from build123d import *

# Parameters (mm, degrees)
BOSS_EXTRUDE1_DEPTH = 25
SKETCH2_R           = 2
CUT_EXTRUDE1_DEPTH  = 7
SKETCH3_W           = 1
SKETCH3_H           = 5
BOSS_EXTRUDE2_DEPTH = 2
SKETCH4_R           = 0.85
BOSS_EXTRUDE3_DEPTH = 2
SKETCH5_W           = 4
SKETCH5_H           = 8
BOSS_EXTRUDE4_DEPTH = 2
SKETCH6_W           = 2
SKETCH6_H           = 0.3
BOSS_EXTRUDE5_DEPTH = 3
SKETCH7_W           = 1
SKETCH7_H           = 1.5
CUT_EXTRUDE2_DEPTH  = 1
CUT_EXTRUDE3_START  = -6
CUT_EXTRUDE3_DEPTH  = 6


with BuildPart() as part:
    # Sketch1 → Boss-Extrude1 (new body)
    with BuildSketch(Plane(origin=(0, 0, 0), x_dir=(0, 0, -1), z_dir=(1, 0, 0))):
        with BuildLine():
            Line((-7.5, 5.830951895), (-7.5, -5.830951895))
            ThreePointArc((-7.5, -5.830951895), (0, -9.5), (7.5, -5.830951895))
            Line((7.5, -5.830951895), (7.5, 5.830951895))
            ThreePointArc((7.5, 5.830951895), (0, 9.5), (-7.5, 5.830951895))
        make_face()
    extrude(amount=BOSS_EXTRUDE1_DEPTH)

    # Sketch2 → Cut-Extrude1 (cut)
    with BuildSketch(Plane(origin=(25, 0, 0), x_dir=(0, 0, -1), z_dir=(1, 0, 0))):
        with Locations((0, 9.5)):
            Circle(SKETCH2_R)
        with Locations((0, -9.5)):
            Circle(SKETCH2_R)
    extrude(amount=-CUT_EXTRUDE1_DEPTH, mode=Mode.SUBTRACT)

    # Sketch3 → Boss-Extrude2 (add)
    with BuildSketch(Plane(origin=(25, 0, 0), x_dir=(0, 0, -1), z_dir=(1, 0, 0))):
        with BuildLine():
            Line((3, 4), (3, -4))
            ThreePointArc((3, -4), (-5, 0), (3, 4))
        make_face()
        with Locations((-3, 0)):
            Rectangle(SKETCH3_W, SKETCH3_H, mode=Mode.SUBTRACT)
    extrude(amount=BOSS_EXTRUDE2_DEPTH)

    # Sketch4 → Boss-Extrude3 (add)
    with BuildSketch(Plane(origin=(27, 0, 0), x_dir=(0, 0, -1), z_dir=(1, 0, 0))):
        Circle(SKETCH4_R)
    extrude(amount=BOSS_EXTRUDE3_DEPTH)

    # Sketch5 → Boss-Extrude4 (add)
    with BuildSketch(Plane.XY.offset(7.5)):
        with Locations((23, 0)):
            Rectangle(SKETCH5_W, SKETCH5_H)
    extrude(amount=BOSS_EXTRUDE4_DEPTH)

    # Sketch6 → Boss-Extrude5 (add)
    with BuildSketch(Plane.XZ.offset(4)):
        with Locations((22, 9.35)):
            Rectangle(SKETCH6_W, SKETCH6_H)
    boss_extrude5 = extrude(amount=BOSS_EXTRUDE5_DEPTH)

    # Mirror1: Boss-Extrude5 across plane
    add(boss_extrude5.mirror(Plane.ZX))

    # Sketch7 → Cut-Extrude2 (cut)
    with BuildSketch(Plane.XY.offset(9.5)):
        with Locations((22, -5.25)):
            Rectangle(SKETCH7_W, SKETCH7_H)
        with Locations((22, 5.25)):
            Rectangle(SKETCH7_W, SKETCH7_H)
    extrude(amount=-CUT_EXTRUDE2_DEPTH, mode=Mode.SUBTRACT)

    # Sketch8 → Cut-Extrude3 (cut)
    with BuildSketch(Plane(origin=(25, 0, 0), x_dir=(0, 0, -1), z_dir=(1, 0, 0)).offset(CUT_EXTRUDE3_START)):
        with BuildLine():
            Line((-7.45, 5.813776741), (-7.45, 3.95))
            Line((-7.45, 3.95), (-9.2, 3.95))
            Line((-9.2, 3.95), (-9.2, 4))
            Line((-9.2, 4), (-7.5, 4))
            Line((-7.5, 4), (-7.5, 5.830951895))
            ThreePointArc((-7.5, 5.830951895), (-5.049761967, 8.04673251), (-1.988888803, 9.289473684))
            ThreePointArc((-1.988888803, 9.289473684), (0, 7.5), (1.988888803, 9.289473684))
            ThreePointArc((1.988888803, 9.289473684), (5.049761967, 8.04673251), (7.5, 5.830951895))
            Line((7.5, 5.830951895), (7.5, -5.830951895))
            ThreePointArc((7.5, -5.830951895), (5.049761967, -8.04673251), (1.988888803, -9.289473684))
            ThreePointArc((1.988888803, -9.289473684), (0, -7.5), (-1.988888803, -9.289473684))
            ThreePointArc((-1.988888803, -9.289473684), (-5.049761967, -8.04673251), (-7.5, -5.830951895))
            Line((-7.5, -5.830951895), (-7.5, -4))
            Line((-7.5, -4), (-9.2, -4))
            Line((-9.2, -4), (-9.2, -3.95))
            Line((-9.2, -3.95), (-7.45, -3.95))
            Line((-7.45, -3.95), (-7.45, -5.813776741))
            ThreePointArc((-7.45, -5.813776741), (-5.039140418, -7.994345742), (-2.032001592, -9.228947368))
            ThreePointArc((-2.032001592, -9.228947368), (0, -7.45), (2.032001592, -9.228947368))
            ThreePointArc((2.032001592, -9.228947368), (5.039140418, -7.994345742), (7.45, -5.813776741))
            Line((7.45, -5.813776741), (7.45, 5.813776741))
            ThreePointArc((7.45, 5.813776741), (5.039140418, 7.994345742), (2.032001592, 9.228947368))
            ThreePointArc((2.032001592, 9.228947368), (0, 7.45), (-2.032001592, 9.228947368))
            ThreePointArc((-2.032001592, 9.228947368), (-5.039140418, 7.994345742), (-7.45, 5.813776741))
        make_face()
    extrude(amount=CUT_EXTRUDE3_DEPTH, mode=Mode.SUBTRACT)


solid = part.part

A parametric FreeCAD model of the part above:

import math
import FreeCAD as App
import Part
import Sketcher

V = App.Vector

doc = App.newDocument("Part")
body = doc.addObject("PartDesign::Body", "Body")

sketch1 = doc.addObject("Sketcher::SketchObject", "Sketch")
body.addObject(sketch1)
sketch1.AttachmentSupport = (doc.YZ_Plane, [""])
sketch1.MapMode = "FlatFace"
sketch1.addGeometry(Part.LineSegment(V(6, 8, 0), V(-6, 8, 0)), False)
sketch1.addGeometry(Part.ArcOfCircle(Part.Circle(V(0, 0, 0), V(0, 0, 1), 10), math.radians(128), math.radians(232)), False)
sketch1.addGeometry(Part.LineSegment(V(-6, -8, 0), V(6, -8, 0)), False)
sketch1.addGeometry(Part.ArcOfCircle(Part.Circle(V(0, 0, 0), V(0, 0, 1), 10), math.radians(-52), math.radians(52)), False)
sketch1.addConstraint(Sketcher.Constraint("Coincident", 0, 2, 1, 1))
sketch1.addConstraint(Sketcher.Constraint("Coincident", 1, 2, 2, 1))
sketch1.addConstraint(Sketcher.Constraint("Coincident", 2, 2, 3, 1))
sketch1.addConstraint(Sketcher.Constraint("Coincident", 3, 2, 0, 1))
sketch1.addConstraint(Sketcher.Constraint("Horizontal", 0))
sketch1.addConstraint(Sketcher.Constraint("Horizontal", 2))
sketch1.addConstraint(Sketcher.Constraint("Coincident", 1, 3, -1, 1))
sketch1.addConstraint(Sketcher.Constraint("Coincident", 3, 3, -1, 1))
sketch1.addConstraint(Sketcher.Constraint("Equal", 1, 3))
sketch1.addConstraint(Sketcher.Constraint("Vertical", 0, 2, 1, 2))
sketch1.addConstraint(Sketcher.Constraint("Radius", 1, 9.5))
sketch1.addConstraint(Sketcher.Constraint("DistanceY", 1, 2, 0, 2, 15.0))
pad1 = doc.addObject("PartDesign::Pad", "Pad")
body.addObject(pad1)
pad1.Profile = sketch1
pad1.Length = 25

sketch2 = doc.addObject("Sketcher::SketchObject", "Sketch001")
body.addObject(sketch2)
sketch2.AttachmentSupport = (doc.YZ_Plane, [""])
sketch2.MapMode = "FlatFace"
sketch2.AttachmentOffset = App.Placement(V(0, 0, 25), App.Rotation())
sketch2.addGeometry(Part.Circle(V(9.5, 0, 0), V(0, 0, 1), 2), False)
sketch2.addGeometry(Part.Circle(V(-9.5, 0, 0), V(0, 0, 1), 2), False)
sketch2.addConstraint(Sketcher.Constraint("Equal", 0, 1))
sketch2.addConstraint(Sketcher.Constraint("Symmetric", 0, 3, 1, 3, -1, 1))
sketch2.addConstraint(Sketcher.Constraint("PointOnObject", 0, 3, -1))
sketch2.addConstraint(Sketcher.Constraint("Diameter", 0, 4.0))
sketch2.addConstraint(Sketcher.Constraint("DistanceX", 1, 3, 0, 3, 19.0))
pocket1 = doc.addObject("PartDesign::Pocket", "Pocket")
body.addObject(pocket1)
pocket1.Profile = sketch2
pocket1.Length = 7

sketch3 = doc.addObject("Sketcher::SketchObject", "Sketch002")
body.addObject(sketch3)
sketch3.AttachmentSupport = (doc.YZ_Plane, [""])
sketch3.MapMode = "FlatFace"
sketch3.AttachmentOffset = App.Placement(V(0, 0, 25), App.Rotation())
sketch3.addGeometry(Part.LineSegment(V(-4, -3, 0), V(4, -3, 0)), False)
sketch3.addGeometry(Part.ArcOfCircle(Part.Circle(V(0, 0, 0), V(0, 0, 1), 5), math.radians(-37), math.radians(217)), False)
sketch3.addGeometry(Part.LineSegment(V(-2.5, 3.5, 0), V(2.5, 3.5, 0)), False)
sketch3.addGeometry(Part.LineSegment(V(2.5, 3.5, 0), V(2.5, 2.5, 0)), False)
sketch3.addGeometry(Part.LineSegment(V(2.5, 2.5, 0), V(-2.5, 2.5, 0)), False)
sketch3.addGeometry(Part.LineSegment(V(-2.5, 2.5, 0), V(-2.5, 3.5, 0)), False)
sketch3.addConstraint(Sketcher.Constraint("Coincident", 0, 1, 1, 2))
sketch3.addConstraint(Sketcher.Constraint("Coincident", 1, 1, 0, 2))
sketch3.addConstraint(Sketcher.Constraint("Coincident", 2, 2, 3, 1))
sketch3.addConstraint(Sketcher.Constraint("Coincident", 3, 2, 4, 1))
sketch3.addConstraint(Sketcher.Constraint("Coincident", 4, 2, 5, 1))
sketch3.addConstraint(Sketcher.Constraint("Coincident", 5, 2, 2, 1))
sketch3.addConstraint(Sketcher.Constraint("Horizontal", 0))
sketch3.addConstraint(Sketcher.Constraint("Horizontal", 2))
sketch3.addConstraint(Sketcher.Constraint("Vertical", 3))
sketch3.addConstraint(Sketcher.Constraint("Horizontal", 4))
sketch3.addConstraint(Sketcher.Constraint("Vertical", 5))
sketch3.addConstraint(Sketcher.Constraint("Coincident", 1, 3, -1, 1))
sketch3.addConstraint(Sketcher.Constraint("Radius", 1, 5.0))
sketch3.addConstraint(Sketcher.Constraint("DistanceX", 0, 1, 0, 2, 8.0))
sketch3.addConstraint(Sketcher.Constraint("DistanceX", 2, 1, 2, 2, 5.0))
sketch3.addConstraint(Sketcher.Constraint("DistanceY", 3, 2, 3, 1, 1.0))
sketch3.addConstraint(Sketcher.Constraint("DistanceX", -1, 1, 2, 2, 2.5))
sketch3.addConstraint(Sketcher.Constraint("DistanceY", -1, 1, 2, 2, 3.5))
pad2 = doc.addObject("PartDesign::Pad", "Pad001")
body.addObject(pad2)
pad2.Profile = sketch3
pad2.Length = 2

sketch4 = doc.addObject("Sketcher::SketchObject", "Sketch003")
body.addObject(sketch4)
sketch4.AttachmentSupport = (doc.YZ_Plane, [""])
sketch4.MapMode = "FlatFace"
sketch4.AttachmentOffset = App.Placement(V(0, 0, 27), App.Rotation())
sketch4.addGeometry(Part.Circle(V(0, 0, 0), V(0, 0, 1), 0.8), False)
sketch4.addConstraint(Sketcher.Constraint("Coincident", 0, 3, -1, 1))
sketch4.addConstraint(Sketcher.Constraint("Diameter", 0, 1.7))
pad3 = doc.addObject("PartDesign::Pad", "Pad002")
body.addObject(pad3)
pad3.Profile = sketch4
pad3.Length = 2

sketch5 = doc.addObject("Sketcher::SketchObject", "Sketch004")
body.addObject(sketch5)
sketch5.AttachmentSupport = (doc.XY_Plane, [""])
sketch5.MapMode = "FlatFace"
sketch5.AttachmentOffset = App.Placement(V(0, 0, 7.5), App.Rotation())
sketch5.addGeometry(Part.LineSegment(V(21, 4, 0), V(21, -4, 0)), False)
sketch5.addGeometry(Part.LineSegment(V(21, -4, 0), V(25, -4, 0)), False)
sketch5.addGeometry(Part.LineSegment(V(25, -4, 0), V(25, 4, 0)), False)
sketch5.addGeometry(Part.LineSegment(V(25, 4, 0), V(21, 4, 0)), False)
sketch5.addConstraint(Sketcher.Constraint("Coincident", 0, 2, 1, 1))
sketch5.addConstraint(Sketcher.Constraint("Coincident", 1, 2, 2, 1))
sketch5.addConstraint(Sketcher.Constraint("Coincident", 2, 2, 3, 1))
sketch5.addConstraint(Sketcher.Constraint("Coincident", 3, 2, 0, 1))
sketch5.addConstraint(Sketcher.Constraint("Vertical", 0))
sketch5.addConstraint(Sketcher.Constraint("Horizontal", 1))
sketch5.addConstraint(Sketcher.Constraint("Vertical", 2))
sketch5.addConstraint(Sketcher.Constraint("Horizontal", 3))
sketch5.addConstraint(Sketcher.Constraint("DistanceX", 1, 1, 1, 2, 4.0))
sketch5.addConstraint(Sketcher.Constraint("DistanceY", 0, 2, 0, 1, 8.0))
sketch5.addConstraint(Sketcher.Constraint("DistanceX", -1, 1, 0, 2, 21.0))
sketch5.addConstraint(Sketcher.Constraint("DistanceY", 0, 2, -1, 1, 4.0))
pad4 = doc.addObject("PartDesign::Pad", "Pad003")
body.addObject(pad4)
pad4.Profile = sketch5
pad4.Length = 2

sketch6 = doc.addObject("Sketcher::SketchObject", "Sketch005")
body.addObject(sketch6)
sketch6.AttachmentSupport = (doc.XZ_Plane, [""])
sketch6.MapMode = "FlatFace"
sketch6.AttachmentOffset = App.Placement(V(0, 0, 4), App.Rotation())
sketch6.addGeometry(Part.LineSegment(V(21, 9.5, 0), V(21, 9.2, 0)), False)
sketch6.addGeometry(Part.LineSegment(V(21, 9.2, 0), V(23, 9.2, 0)), False)
sketch6.addGeometry(Part.LineSegment(V(23, 9.2, 0), V(23, 9.5, 0)), False)
sketch6.addGeometry(Part.LineSegment(V(23, 9.5, 0), V(21, 9.5, 0)), False)
sketch6.addConstraint(Sketcher.Constraint("Coincident", 0, 2, 1, 1))
sketch6.addConstraint(Sketcher.Constraint("Coincident", 1, 2, 2, 1))
sketch6.addConstraint(Sketcher.Constraint("Coincident", 2, 2, 3, 1))
sketch6.addConstraint(Sketcher.Constraint("Coincident", 3, 2, 0, 1))
sketch6.addConstraint(Sketcher.Constraint("Vertical", 0))
sketch6.addConstraint(Sketcher.Constraint("Horizontal", 1))
sketch6.addConstraint(Sketcher.Constraint("Vertical", 2))
sketch6.addConstraint(Sketcher.Constraint("Horizontal", 3))
sketch6.addConstraint(Sketcher.Constraint("DistanceX", 1, 1, 1, 2, 2.0))
sketch6.addConstraint(Sketcher.Constraint("DistanceY", 0, 2, 0, 1, 0.3))
sketch6.addConstraint(Sketcher.Constraint("DistanceX", -1, 1, 0, 2, 21.0))
sketch6.addConstraint(Sketcher.Constraint("DistanceY", -1, 1, 0, 2, 9.2))
pad5 = doc.addObject("PartDesign::Pad", "Pad004")
body.addObject(pad5)
pad5.Profile = sketch6
pad5.Length = 3
doc.recompute()

mirrored = doc.addObject("PartDesign::Mirrored", "Mirrored")
body.addObject(mirrored)
mirrored.Originals = [pad5]
mirrored.MirrorPlane = (doc.XZ_Plane, [""])
body.Tip = mirrored

sketch7 = doc.addObject("Sketcher::SketchObject", "Sketch006")
body.addObject(sketch7)
sketch7.AttachmentSupport = (doc.XY_Plane, [""])
sketch7.MapMode = "FlatFace"
sketch7.AttachmentOffset = App.Placement(V(0, 0, 9.5), App.Rotation())
sketch7.addGeometry(Part.LineSegment(V(21.5, -4.5, 0), V(21.5, -6, 0)), False)
sketch7.addGeometry(Part.LineSegment(V(21.5, -6, 0), V(22.5, -6, 0)), False)
sketch7.addGeometry(Part.LineSegment(V(22.5, -6, 0), V(22.5, -4.5, 0)), False)
sketch7.addGeometry(Part.LineSegment(V(22.5, -4.5, 0), V(21.5, -4.5, 0)), False)
sketch7.addGeometry(Part.LineSegment(V(21.5, 6, 0), V(21.5, 4.5, 0)), False)
sketch7.addGeometry(Part.LineSegment(V(21.5, 4.5, 0), V(22.5, 4.5, 0)), False)
sketch7.addGeometry(Part.LineSegment(V(22.5, 4.5, 0), V(22.5, 6, 0)), False)
sketch7.addGeometry(Part.LineSegment(V(22.5, 6, 0), V(21.5, 6, 0)), False)
sketch7.addConstraint(Sketcher.Constraint("Coincident", 0, 2, 1, 1))
sketch7.addConstraint(Sketcher.Constraint("Coincident", 1, 2, 2, 1))
sketch7.addConstraint(Sketcher.Constraint("Coincident", 2, 2, 3, 1))
sketch7.addConstraint(Sketcher.Constraint("Coincident", 3, 2, 0, 1))
sketch7.addConstraint(Sketcher.Constraint("Coincident", 4, 2, 5, 1))
sketch7.addConstraint(Sketcher.Constraint("Coincident", 5, 2, 6, 1))
sketch7.addConstraint(Sketcher.Constraint("Coincident", 6, 2, 7, 1))
sketch7.addConstraint(Sketcher.Constraint("Coincident", 7, 2, 4, 1))
sketch7.addConstraint(Sketcher.Constraint("Vertical", 0))
sketch7.addConstraint(Sketcher.Constraint("Horizontal", 1))
sketch7.addConstraint(Sketcher.Constraint("Vertical", 2))
sketch7.addConstraint(Sketcher.Constraint("Horizontal", 3))
sketch7.addConstraint(Sketcher.Constraint("Vertical", 4))
sketch7.addConstraint(Sketcher.Constraint("Horizontal", 5))
sketch7.addConstraint(Sketcher.Constraint("Vertical", 6))
sketch7.addConstraint(Sketcher.Constraint("Horizontal", 7))
sketch7.addConstraint(Sketcher.Constraint("Symmetric", 3, 2, 4, 2, -1))
sketch7.addConstraint(Sketcher.Constraint("Symmetric", 1, 2, 6, 2, -1))
sketch7.addConstraint(Sketcher.Constraint("DistanceX", 1, 1, 1, 2, 1.0))
sketch7.addConstraint(Sketcher.Constraint("DistanceY", 0, 2, 0, 1, 1.5))
sketch7.addConstraint(Sketcher.Constraint("DistanceY", 0, 2, -1, 1, 6.0))
sketch7.addConstraint(Sketcher.Constraint("DistanceX", -1, 1, 0, 2, 21.5))
pocket2 = doc.addObject("PartDesign::Pocket", "Pocket001")
body.addObject(pocket2)
pocket2.Profile = sketch7
pocket2.Length = 1

sketch8 = doc.addObject("Sketcher::SketchObject", "Sketch007")
body.addObject(sketch8)
sketch8.AttachmentSupport = (doc.YZ_Plane, [""])
sketch8.MapMode = "FlatFace"
sketch8.AttachmentOffset = App.Placement(V(0, 0, 19), App.Rotation())
sketch8.addGeometry(Part.LineSegment(V(3.95, 7.45, 0), V(5.814, 7.45, 0)), False)
sketch8.addGeometry(Part.ArcOfCircle(Part.Circle(V(0, 0, 0), V(0, 0, 1), 9.45), math.radians(12), math.radians(52)), False)
sketch8.addGeometry(Part.ArcOfCircle(Part.Circle(V(9.5, 0, 0), V(0, 0, 1), 2.05), math.radians(98), math.radians(262)), False)
sketch8.addGeometry(Part.ArcOfCircle(Part.Circle(V(0, 0, 0), V(0, 0, 1), 9.45), math.radians(-52), math.radians(-12)), False)
sketch8.addGeometry(Part.LineSegment(V(5.814, -7.45, 0), V(-5.814, -7.45, 0)), False)
sketch8.addGeometry(Part.ArcOfCircle(Part.Circle(V(0, 0, 0), V(0, 0, 1), 9.45), math.radians(-168), math.radians(-128)), False)
sketch8.addGeometry(Part.ArcOfCircle(Part.Circle(V(-9.5, 0, 0), V(0, 0, 1), 2.05), math.radians(-82), math.radians(82)), False)
sketch8.addGeometry(Part.ArcOfCircle(Part.Circle(V(0, 0, 0), V(0, 0, 1), 9.45), math.radians(128), math.radians(168)), False)
sketch8.addGeometry(Part.LineSegment(V(-5.814, 7.45, 0), V(-3.95, 7.45, 0)), False)
sketch8.addGeometry(Part.LineSegment(V(-3.95, 7.45, 0), V(-3.95, 9.2, 0)), False)
sketch8.addGeometry(Part.LineSegment(V(-3.95, 9.2, 0), V(-4, 9.2, 0)), False)
sketch8.addGeometry(Part.LineSegment(V(-4, 9.2, 0), V(-4, 7.5, 0)), False)
sketch8.addGeometry(Part.LineSegment(V(-4, 7.5, 0), V(-5.831, 7.5, 0)), False)
sketch8.addGeometry(Part.ArcOfCircle(Part.Circle(V(0, 0, 0), V(0, 0, 1), 9.5), math.radians(128), math.radians(168)), False)
sketch8.addGeometry(Part.ArcOfCircle(Part.Circle(V(-9.5, 0, 0), V(0, 0, 1), 2), math.radians(-84), math.radians(84)), False)
sketch8.addGeometry(Part.ArcOfCircle(Part.Circle(V(0, 0, 0), V(0, 0, 1), 9.5), math.radians(-168), math.radians(-128)), False)
sketch8.addGeometry(Part.LineSegment(V(-5.831, -7.5, 0), V(5.831, -7.5, 0)), False)
sketch8.addGeometry(Part.ArcOfCircle(Part.Circle(V(0, 0, 0), V(0, 0, 1), 9.5), math.radians(-52), math.radians(-12)), False)
sketch8.addGeometry(Part.ArcOfCircle(Part.Circle(V(9.5, 0, 0), V(0, 0, 1), 2), math.radians(96), math.radians(264)), False)
sketch8.addGeometry(Part.ArcOfCircle(Part.Circle(V(0, 0, 0), V(0, 0, 1), 9.5), math.radians(12), math.radians(52)), False)
sketch8.addGeometry(Part.LineSegment(V(5.831, 7.5, 0), V(4, 7.5, 0)), False)
sketch8.addGeometry(Part.LineSegment(V(4, 7.5, 0), V(4, 9.2, 0)), False)
sketch8.addGeometry(Part.LineSegment(V(4, 9.2, 0), V(3.95, 9.2, 0)), False)
sketch8.addGeometry(Part.LineSegment(V(3.95, 9.2, 0), V(3.95, 7.45, 0)), False)
sketch8.addConstraint(Sketcher.Constraint("Coincident", 0, 2, 1, 2))
sketch8.addConstraint(Sketcher.Constraint("Coincident", 1, 1, 2, 1))
sketch8.addConstraint(Sketcher.Constraint("Coincident", 2, 2, 3, 2))
sketch8.addConstraint(Sketcher.Constraint("Coincident", 3, 1, 4, 1))
sketch8.addConstraint(Sketcher.Constraint("Coincident", 4, 2, 5, 2))
sketch8.addConstraint(Sketcher.Constraint("Coincident", 5, 1, 6, 1))
sketch8.addConstraint(Sketcher.Constraint("Coincident", 6, 2, 7, 2))
sketch8.addConstraint(Sketcher.Constraint("Coincident", 7, 1, 8, 1))
sketch8.addConstraint(Sketcher.Constraint("Coincident", 8, 2, 9, 1))
sketch8.addConstraint(Sketcher.Constraint("Coincident", 9, 2, 10, 1))
sketch8.addConstraint(Sketcher.Constraint("Coincident", 10, 2, 11, 1))
sketch8.addConstraint(Sketcher.Constraint("Coincident", 11, 2, 12, 1))
sketch8.addConstraint(Sketcher.Constraint("Coincident", 12, 2, 13, 1))
sketch8.addConstraint(Sketcher.Constraint("Coincident", 13, 2, 14, 2))
sketch8.addConstraint(Sketcher.Constraint("Coincident", 14, 1, 15, 1))
sketch8.addConstraint(Sketcher.Constraint("Coincident", 15, 2, 16, 1))
sketch8.addConstraint(Sketcher.Constraint("Coincident", 16, 2, 17, 1))
sketch8.addConstraint(Sketcher.Constraint("Coincident", 17, 2, 18, 2))
sketch8.addConstraint(Sketcher.Constraint("Coincident", 18, 1, 19, 1))
sketch8.addConstraint(Sketcher.Constraint("Coincident", 19, 2, 20, 1))
sketch8.addConstraint(Sketcher.Constraint("Coincident", 20, 2, 21, 1))
sketch8.addConstraint(Sketcher.Constraint("Coincident", 21, 2, 22, 1))
sketch8.addConstraint(Sketcher.Constraint("Coincident", 22, 2, 23, 1))
sketch8.addConstraint(Sketcher.Constraint("Coincident", 23, 2, 0, 1))
sketch8.addConstraint(Sketcher.Constraint("Horizontal", 0))
sketch8.addConstraint(Sketcher.Constraint("Horizontal", 4))
sketch8.addConstraint(Sketcher.Constraint("Horizontal", 8))
sketch8.addConstraint(Sketcher.Constraint("Vertical", 9))
sketch8.addConstraint(Sketcher.Constraint("Horizontal", 10))
sketch8.addConstraint(Sketcher.Constraint("Vertical", 11))
sketch8.addConstraint(Sketcher.Constraint("Horizontal", 12))
sketch8.addConstraint(Sketcher.Constraint("Horizontal", 16))
sketch8.addConstraint(Sketcher.Constraint("Horizontal", 20))
sketch8.addConstraint(Sketcher.Constraint("Vertical", 21))
sketch8.addConstraint(Sketcher.Constraint("Horizontal", 22))
sketch8.addConstraint(Sketcher.Constraint("Vertical", 23))
sketch8.addConstraint(Sketcher.Constraint("Coincident", 1, 3, -1, 1))
sketch8.addConstraint(Sketcher.Constraint("Coincident", 3, 3, -1, 1))
sketch8.addConstraint(Sketcher.Constraint("Coincident", 5, 3, -1, 1))
sketch8.addConstraint(Sketcher.Constraint("Coincident", 7, 3, -1, 1))
sketch8.addConstraint(Sketcher.Constraint("Coincident", 13, 3, -1, 1))
sketch8.addConstraint(Sketcher.Constraint("Coincident", 15, 3, -1, 1))
sketch8.addConstraint(Sketcher.Constraint("Coincident", 17, 3, -1, 1))
sketch8.addConstraint(Sketcher.Constraint("Coincident", 19, 3, -1, 1))
sketch8.addConstraint(Sketcher.Constraint("Coincident", 14, 3, 6, 3))
sketch8.addConstraint(Sketcher.Constraint("Coincident", 18, 3, 2, 3))
sketch8.addConstraint(Sketcher.Constraint("Equal", 1, 3))
sketch8.addConstraint(Sketcher.Constraint("Equal", 3, 5))
sketch8.addConstraint(Sketcher.Constraint("Equal", 2, 6))
sketch8.addConstraint(Sketcher.Constraint("Equal", 5, 7))
sketch8.addConstraint(Sketcher.Constraint("Equal", 13, 15))
sketch8.addConstraint(Sketcher.Constraint("Equal", 15, 17))
sketch8.addConstraint(Sketcher.Constraint("Equal", 14, 18))
sketch8.addConstraint(Sketcher.Constraint("Equal", 17, 19))
sketch8.addConstraint(Sketcher.Constraint("Symmetric", 2, 3, 6, 3, -1, 1))
sketch8.addConstraint(Sketcher.Constraint("Symmetric", 11, 2, 20, 2, -2))
sketch8.addConstraint(Sketcher.Constraint("Symmetric", 9, 2, 22, 2, -2))
sketch8.addConstraint(Sketcher.Constraint("PointOnObject", 2, 3, -1))
sketch8.addConstraint(Sketcher.Constraint("Horizontal", 0, 2, 7, 1))
sketch8.addConstraint(Sketcher.Constraint("Vertical", 0, 2, 3, 1))
sketch8.addConstraint(Sketcher.Constraint("Vertical", 12, 2, 15, 2))
sketch8.addConstraint(Sketcher.Constraint("Radius", 14, 2.0))
sketch8.addConstraint(Sketcher.Constraint("Radius", 13, 9.5))
sketch8.addConstraint(Sketcher.Constraint("Radius", 1, 9.45))
sketch8.addConstraint(Sketcher.Constraint("Radius", 2, 2.05))
sketch8.addConstraint(Sketcher.Constraint("DistanceY", 11, 2, 11, 1, 1.7))
sketch8.addConstraint(Sketcher.Constraint("DistanceX", 10, 2, -1, 1, 4.0))
sketch8.addConstraint(Sketcher.Constraint("DistanceX", 6, 3, 2, 3, 19.0))
sketch8.addConstraint(Sketcher.Constraint("DistanceX", 10, 2, 10, 1, 0.05))
sketch8.addConstraint(Sketcher.Constraint("DistanceY", 9, 1, 9, 2, 1.75))
sketch8.addConstraint(Sketcher.Constraint("DistanceY", -1, 1, 9, 2, 9.2))
pocket3 = doc.addObject("PartDesign::Pocket", "Pocket002")
body.addObject(pocket3)
pocket3.Profile = sketch8
pocket3.Length = 6
pocket3.Reversed = True

doc.recompute()
